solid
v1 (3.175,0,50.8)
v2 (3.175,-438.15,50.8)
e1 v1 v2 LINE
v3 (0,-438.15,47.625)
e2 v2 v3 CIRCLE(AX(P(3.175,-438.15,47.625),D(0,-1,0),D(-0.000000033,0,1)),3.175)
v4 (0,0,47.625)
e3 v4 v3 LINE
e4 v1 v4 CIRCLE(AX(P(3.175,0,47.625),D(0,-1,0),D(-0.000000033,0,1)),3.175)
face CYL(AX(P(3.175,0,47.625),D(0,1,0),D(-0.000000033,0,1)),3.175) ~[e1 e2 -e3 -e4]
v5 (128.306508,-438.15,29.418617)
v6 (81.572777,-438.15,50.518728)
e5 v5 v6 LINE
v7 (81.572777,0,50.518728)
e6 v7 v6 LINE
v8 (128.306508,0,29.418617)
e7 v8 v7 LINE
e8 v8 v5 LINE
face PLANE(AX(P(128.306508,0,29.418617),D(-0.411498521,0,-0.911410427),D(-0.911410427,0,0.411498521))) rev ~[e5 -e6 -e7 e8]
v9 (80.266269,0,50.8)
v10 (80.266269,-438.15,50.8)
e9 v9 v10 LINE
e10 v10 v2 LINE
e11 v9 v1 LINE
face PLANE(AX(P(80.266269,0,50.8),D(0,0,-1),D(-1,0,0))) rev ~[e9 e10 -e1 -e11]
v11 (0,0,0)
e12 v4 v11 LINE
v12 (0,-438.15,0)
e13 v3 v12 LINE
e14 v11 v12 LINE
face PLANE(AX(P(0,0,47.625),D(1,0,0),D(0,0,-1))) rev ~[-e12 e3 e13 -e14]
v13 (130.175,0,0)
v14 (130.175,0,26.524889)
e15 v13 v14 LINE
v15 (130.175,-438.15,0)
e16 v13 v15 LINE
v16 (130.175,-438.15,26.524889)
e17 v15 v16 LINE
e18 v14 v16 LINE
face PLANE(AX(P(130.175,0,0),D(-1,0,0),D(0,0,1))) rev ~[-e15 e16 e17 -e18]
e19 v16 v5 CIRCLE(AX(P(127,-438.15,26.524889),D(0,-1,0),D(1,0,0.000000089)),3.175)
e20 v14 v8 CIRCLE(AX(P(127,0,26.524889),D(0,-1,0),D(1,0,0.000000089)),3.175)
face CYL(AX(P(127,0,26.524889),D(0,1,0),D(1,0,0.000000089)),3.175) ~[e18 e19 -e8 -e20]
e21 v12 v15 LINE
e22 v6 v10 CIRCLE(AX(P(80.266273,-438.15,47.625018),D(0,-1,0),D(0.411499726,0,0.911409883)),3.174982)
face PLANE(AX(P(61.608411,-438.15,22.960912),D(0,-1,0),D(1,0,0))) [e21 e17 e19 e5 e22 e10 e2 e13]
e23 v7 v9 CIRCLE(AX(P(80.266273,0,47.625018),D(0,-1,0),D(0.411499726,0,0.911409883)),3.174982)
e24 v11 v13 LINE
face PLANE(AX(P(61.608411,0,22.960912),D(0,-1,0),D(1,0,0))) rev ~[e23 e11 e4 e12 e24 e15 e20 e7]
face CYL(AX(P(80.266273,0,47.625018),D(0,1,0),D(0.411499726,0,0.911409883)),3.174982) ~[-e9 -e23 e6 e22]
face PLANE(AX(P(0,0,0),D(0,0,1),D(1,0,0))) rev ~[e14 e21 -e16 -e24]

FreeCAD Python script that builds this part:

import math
import FreeCAD as App
import Part
import Sketcher
Q = App.Units.Quantity

doc = App.newDocument("Part")
body = doc.addObject("PartDesign::Body", "Body")

# Sketch on XZ plane
sketch1 = body.newObject("Sketcher::SketchObject", "Sketch")
sketch1.AttachmentSupport = (doc.getObject("XZ_Plane"), [""])
sketch1.MapMode = "FlatFace"
sketch1.addGeometry(Part.LineSegment(App.Vector(0, 47.6, 0), App.Vector(0, 0, 0)), False)
sketch1.addGeometry(Part.LineSegment(App.Vector(0, 0, 0), App.Vector(130.2, 0, 0)), False)
sketch1.addGeometry(Part.LineSegment(App.Vector(130.2, 0, 0), App.Vector(130.2, 26.5, 0)), False)
sketch1.addGeometry(Part.ArcOfCircle(Part.Circle(App.Vector(127, 26.5, 0), App.Vector(0, 0, 1), 3.2), math.radians(0), math.radians(66)), False)
sketch1.addGeometry(Part.LineSegment(App.Vector(128.3, 29.4, 0), App.Vector(81.6, 50.5, 0)), False)
sketch1.addGeometry(Part.ArcOfCircle(Part.Circle(App.Vector(80.3, 47.6, 0), App.Vector(0, 0, 1), 3.2), math.radians(66), math.radians(90)), False)
sketch1.addGeometry(Part.LineSegment(App.Vector(80.3, 50.8, 0), App.Vector(3.2, 50.8, 0)), False)
sketch1.addGeometry(Part.ArcOfCircle(Part.Circle(App.Vector(3.2, 47.6, 0), App.Vector(0, 0, 1), 3.2), math.radians(90), math.radians(180)), False)
sketch1.addConstraint(Sketcher.Constraint("Coincident", 0, 2, 1, 1))
sketch1.addConstraint(Sketcher.Constraint("Coincident", 1, 2, 2, 1))
sketch1.addConstraint(Sketcher.Constraint("Tangent", 2, 2, 3, 1))
sketch1.addConstraint(Sketcher.Constraint("Tangent", 3, 2, 4, 1))
sketch1.addConstraint(Sketcher.Constraint("Tangent", 4, 2, 5, 1))
sketch1.addConstraint(Sketcher.Constraint("Tangent", 5, 2, 6, 1))
sketch1.addConstraint(Sketcher.Constraint("Tangent", 6, 2, 7, 1))
sketch1.addConstraint(Sketcher.Constraint("Tangent", 7, 2, 0, 1))
sketch1.addConstraint(Sketcher.Constraint("Vertical", 0))
sketch1.addConstraint(Sketcher.Constraint("Horizontal", 1))
sketch1.addConstraint(Sketcher.Constraint("Vertical", 2))
sketch1.addConstraint(Sketcher.Constraint("Horizontal", 6))
sketch1.addConstraint(Sketcher.Constraint("Coincident", 0, 2, -1, 1))
sketch1.addConstraint(Sketcher.Constraint("Equal", 3, 7))
sketch1.addConstraint(Sketcher.Constraint("DistanceX", -1, 1, 3, 3, Q("5 in")))
sketch1.addConstraint(Sketcher.Constraint("DistanceY", -1, 1, 5, 2, Q("2 in")))
sketch1.addConstraint(Sketcher.Constraint("Radius", 3, Q("0.125 in")))
sketch1.addConstraint(Sketcher.Constraint("Radius", 5, Q("3.174982 mm")))
sketch1.addConstraint(Sketcher.Constraint("DistanceX", 6, 2, 6, 1, Q("77.091269 mm")))
sketch1.addConstraint(Sketcher.Constraint("DistanceY", 2, 1, 2, 2, Q("26.524889 mm")))
pad1 = body.newObject("PartDesign::Pad", "Pad")
pad1.Profile = sketch1
pad1.Length = Q("17.25 in")

doc.recompute()
